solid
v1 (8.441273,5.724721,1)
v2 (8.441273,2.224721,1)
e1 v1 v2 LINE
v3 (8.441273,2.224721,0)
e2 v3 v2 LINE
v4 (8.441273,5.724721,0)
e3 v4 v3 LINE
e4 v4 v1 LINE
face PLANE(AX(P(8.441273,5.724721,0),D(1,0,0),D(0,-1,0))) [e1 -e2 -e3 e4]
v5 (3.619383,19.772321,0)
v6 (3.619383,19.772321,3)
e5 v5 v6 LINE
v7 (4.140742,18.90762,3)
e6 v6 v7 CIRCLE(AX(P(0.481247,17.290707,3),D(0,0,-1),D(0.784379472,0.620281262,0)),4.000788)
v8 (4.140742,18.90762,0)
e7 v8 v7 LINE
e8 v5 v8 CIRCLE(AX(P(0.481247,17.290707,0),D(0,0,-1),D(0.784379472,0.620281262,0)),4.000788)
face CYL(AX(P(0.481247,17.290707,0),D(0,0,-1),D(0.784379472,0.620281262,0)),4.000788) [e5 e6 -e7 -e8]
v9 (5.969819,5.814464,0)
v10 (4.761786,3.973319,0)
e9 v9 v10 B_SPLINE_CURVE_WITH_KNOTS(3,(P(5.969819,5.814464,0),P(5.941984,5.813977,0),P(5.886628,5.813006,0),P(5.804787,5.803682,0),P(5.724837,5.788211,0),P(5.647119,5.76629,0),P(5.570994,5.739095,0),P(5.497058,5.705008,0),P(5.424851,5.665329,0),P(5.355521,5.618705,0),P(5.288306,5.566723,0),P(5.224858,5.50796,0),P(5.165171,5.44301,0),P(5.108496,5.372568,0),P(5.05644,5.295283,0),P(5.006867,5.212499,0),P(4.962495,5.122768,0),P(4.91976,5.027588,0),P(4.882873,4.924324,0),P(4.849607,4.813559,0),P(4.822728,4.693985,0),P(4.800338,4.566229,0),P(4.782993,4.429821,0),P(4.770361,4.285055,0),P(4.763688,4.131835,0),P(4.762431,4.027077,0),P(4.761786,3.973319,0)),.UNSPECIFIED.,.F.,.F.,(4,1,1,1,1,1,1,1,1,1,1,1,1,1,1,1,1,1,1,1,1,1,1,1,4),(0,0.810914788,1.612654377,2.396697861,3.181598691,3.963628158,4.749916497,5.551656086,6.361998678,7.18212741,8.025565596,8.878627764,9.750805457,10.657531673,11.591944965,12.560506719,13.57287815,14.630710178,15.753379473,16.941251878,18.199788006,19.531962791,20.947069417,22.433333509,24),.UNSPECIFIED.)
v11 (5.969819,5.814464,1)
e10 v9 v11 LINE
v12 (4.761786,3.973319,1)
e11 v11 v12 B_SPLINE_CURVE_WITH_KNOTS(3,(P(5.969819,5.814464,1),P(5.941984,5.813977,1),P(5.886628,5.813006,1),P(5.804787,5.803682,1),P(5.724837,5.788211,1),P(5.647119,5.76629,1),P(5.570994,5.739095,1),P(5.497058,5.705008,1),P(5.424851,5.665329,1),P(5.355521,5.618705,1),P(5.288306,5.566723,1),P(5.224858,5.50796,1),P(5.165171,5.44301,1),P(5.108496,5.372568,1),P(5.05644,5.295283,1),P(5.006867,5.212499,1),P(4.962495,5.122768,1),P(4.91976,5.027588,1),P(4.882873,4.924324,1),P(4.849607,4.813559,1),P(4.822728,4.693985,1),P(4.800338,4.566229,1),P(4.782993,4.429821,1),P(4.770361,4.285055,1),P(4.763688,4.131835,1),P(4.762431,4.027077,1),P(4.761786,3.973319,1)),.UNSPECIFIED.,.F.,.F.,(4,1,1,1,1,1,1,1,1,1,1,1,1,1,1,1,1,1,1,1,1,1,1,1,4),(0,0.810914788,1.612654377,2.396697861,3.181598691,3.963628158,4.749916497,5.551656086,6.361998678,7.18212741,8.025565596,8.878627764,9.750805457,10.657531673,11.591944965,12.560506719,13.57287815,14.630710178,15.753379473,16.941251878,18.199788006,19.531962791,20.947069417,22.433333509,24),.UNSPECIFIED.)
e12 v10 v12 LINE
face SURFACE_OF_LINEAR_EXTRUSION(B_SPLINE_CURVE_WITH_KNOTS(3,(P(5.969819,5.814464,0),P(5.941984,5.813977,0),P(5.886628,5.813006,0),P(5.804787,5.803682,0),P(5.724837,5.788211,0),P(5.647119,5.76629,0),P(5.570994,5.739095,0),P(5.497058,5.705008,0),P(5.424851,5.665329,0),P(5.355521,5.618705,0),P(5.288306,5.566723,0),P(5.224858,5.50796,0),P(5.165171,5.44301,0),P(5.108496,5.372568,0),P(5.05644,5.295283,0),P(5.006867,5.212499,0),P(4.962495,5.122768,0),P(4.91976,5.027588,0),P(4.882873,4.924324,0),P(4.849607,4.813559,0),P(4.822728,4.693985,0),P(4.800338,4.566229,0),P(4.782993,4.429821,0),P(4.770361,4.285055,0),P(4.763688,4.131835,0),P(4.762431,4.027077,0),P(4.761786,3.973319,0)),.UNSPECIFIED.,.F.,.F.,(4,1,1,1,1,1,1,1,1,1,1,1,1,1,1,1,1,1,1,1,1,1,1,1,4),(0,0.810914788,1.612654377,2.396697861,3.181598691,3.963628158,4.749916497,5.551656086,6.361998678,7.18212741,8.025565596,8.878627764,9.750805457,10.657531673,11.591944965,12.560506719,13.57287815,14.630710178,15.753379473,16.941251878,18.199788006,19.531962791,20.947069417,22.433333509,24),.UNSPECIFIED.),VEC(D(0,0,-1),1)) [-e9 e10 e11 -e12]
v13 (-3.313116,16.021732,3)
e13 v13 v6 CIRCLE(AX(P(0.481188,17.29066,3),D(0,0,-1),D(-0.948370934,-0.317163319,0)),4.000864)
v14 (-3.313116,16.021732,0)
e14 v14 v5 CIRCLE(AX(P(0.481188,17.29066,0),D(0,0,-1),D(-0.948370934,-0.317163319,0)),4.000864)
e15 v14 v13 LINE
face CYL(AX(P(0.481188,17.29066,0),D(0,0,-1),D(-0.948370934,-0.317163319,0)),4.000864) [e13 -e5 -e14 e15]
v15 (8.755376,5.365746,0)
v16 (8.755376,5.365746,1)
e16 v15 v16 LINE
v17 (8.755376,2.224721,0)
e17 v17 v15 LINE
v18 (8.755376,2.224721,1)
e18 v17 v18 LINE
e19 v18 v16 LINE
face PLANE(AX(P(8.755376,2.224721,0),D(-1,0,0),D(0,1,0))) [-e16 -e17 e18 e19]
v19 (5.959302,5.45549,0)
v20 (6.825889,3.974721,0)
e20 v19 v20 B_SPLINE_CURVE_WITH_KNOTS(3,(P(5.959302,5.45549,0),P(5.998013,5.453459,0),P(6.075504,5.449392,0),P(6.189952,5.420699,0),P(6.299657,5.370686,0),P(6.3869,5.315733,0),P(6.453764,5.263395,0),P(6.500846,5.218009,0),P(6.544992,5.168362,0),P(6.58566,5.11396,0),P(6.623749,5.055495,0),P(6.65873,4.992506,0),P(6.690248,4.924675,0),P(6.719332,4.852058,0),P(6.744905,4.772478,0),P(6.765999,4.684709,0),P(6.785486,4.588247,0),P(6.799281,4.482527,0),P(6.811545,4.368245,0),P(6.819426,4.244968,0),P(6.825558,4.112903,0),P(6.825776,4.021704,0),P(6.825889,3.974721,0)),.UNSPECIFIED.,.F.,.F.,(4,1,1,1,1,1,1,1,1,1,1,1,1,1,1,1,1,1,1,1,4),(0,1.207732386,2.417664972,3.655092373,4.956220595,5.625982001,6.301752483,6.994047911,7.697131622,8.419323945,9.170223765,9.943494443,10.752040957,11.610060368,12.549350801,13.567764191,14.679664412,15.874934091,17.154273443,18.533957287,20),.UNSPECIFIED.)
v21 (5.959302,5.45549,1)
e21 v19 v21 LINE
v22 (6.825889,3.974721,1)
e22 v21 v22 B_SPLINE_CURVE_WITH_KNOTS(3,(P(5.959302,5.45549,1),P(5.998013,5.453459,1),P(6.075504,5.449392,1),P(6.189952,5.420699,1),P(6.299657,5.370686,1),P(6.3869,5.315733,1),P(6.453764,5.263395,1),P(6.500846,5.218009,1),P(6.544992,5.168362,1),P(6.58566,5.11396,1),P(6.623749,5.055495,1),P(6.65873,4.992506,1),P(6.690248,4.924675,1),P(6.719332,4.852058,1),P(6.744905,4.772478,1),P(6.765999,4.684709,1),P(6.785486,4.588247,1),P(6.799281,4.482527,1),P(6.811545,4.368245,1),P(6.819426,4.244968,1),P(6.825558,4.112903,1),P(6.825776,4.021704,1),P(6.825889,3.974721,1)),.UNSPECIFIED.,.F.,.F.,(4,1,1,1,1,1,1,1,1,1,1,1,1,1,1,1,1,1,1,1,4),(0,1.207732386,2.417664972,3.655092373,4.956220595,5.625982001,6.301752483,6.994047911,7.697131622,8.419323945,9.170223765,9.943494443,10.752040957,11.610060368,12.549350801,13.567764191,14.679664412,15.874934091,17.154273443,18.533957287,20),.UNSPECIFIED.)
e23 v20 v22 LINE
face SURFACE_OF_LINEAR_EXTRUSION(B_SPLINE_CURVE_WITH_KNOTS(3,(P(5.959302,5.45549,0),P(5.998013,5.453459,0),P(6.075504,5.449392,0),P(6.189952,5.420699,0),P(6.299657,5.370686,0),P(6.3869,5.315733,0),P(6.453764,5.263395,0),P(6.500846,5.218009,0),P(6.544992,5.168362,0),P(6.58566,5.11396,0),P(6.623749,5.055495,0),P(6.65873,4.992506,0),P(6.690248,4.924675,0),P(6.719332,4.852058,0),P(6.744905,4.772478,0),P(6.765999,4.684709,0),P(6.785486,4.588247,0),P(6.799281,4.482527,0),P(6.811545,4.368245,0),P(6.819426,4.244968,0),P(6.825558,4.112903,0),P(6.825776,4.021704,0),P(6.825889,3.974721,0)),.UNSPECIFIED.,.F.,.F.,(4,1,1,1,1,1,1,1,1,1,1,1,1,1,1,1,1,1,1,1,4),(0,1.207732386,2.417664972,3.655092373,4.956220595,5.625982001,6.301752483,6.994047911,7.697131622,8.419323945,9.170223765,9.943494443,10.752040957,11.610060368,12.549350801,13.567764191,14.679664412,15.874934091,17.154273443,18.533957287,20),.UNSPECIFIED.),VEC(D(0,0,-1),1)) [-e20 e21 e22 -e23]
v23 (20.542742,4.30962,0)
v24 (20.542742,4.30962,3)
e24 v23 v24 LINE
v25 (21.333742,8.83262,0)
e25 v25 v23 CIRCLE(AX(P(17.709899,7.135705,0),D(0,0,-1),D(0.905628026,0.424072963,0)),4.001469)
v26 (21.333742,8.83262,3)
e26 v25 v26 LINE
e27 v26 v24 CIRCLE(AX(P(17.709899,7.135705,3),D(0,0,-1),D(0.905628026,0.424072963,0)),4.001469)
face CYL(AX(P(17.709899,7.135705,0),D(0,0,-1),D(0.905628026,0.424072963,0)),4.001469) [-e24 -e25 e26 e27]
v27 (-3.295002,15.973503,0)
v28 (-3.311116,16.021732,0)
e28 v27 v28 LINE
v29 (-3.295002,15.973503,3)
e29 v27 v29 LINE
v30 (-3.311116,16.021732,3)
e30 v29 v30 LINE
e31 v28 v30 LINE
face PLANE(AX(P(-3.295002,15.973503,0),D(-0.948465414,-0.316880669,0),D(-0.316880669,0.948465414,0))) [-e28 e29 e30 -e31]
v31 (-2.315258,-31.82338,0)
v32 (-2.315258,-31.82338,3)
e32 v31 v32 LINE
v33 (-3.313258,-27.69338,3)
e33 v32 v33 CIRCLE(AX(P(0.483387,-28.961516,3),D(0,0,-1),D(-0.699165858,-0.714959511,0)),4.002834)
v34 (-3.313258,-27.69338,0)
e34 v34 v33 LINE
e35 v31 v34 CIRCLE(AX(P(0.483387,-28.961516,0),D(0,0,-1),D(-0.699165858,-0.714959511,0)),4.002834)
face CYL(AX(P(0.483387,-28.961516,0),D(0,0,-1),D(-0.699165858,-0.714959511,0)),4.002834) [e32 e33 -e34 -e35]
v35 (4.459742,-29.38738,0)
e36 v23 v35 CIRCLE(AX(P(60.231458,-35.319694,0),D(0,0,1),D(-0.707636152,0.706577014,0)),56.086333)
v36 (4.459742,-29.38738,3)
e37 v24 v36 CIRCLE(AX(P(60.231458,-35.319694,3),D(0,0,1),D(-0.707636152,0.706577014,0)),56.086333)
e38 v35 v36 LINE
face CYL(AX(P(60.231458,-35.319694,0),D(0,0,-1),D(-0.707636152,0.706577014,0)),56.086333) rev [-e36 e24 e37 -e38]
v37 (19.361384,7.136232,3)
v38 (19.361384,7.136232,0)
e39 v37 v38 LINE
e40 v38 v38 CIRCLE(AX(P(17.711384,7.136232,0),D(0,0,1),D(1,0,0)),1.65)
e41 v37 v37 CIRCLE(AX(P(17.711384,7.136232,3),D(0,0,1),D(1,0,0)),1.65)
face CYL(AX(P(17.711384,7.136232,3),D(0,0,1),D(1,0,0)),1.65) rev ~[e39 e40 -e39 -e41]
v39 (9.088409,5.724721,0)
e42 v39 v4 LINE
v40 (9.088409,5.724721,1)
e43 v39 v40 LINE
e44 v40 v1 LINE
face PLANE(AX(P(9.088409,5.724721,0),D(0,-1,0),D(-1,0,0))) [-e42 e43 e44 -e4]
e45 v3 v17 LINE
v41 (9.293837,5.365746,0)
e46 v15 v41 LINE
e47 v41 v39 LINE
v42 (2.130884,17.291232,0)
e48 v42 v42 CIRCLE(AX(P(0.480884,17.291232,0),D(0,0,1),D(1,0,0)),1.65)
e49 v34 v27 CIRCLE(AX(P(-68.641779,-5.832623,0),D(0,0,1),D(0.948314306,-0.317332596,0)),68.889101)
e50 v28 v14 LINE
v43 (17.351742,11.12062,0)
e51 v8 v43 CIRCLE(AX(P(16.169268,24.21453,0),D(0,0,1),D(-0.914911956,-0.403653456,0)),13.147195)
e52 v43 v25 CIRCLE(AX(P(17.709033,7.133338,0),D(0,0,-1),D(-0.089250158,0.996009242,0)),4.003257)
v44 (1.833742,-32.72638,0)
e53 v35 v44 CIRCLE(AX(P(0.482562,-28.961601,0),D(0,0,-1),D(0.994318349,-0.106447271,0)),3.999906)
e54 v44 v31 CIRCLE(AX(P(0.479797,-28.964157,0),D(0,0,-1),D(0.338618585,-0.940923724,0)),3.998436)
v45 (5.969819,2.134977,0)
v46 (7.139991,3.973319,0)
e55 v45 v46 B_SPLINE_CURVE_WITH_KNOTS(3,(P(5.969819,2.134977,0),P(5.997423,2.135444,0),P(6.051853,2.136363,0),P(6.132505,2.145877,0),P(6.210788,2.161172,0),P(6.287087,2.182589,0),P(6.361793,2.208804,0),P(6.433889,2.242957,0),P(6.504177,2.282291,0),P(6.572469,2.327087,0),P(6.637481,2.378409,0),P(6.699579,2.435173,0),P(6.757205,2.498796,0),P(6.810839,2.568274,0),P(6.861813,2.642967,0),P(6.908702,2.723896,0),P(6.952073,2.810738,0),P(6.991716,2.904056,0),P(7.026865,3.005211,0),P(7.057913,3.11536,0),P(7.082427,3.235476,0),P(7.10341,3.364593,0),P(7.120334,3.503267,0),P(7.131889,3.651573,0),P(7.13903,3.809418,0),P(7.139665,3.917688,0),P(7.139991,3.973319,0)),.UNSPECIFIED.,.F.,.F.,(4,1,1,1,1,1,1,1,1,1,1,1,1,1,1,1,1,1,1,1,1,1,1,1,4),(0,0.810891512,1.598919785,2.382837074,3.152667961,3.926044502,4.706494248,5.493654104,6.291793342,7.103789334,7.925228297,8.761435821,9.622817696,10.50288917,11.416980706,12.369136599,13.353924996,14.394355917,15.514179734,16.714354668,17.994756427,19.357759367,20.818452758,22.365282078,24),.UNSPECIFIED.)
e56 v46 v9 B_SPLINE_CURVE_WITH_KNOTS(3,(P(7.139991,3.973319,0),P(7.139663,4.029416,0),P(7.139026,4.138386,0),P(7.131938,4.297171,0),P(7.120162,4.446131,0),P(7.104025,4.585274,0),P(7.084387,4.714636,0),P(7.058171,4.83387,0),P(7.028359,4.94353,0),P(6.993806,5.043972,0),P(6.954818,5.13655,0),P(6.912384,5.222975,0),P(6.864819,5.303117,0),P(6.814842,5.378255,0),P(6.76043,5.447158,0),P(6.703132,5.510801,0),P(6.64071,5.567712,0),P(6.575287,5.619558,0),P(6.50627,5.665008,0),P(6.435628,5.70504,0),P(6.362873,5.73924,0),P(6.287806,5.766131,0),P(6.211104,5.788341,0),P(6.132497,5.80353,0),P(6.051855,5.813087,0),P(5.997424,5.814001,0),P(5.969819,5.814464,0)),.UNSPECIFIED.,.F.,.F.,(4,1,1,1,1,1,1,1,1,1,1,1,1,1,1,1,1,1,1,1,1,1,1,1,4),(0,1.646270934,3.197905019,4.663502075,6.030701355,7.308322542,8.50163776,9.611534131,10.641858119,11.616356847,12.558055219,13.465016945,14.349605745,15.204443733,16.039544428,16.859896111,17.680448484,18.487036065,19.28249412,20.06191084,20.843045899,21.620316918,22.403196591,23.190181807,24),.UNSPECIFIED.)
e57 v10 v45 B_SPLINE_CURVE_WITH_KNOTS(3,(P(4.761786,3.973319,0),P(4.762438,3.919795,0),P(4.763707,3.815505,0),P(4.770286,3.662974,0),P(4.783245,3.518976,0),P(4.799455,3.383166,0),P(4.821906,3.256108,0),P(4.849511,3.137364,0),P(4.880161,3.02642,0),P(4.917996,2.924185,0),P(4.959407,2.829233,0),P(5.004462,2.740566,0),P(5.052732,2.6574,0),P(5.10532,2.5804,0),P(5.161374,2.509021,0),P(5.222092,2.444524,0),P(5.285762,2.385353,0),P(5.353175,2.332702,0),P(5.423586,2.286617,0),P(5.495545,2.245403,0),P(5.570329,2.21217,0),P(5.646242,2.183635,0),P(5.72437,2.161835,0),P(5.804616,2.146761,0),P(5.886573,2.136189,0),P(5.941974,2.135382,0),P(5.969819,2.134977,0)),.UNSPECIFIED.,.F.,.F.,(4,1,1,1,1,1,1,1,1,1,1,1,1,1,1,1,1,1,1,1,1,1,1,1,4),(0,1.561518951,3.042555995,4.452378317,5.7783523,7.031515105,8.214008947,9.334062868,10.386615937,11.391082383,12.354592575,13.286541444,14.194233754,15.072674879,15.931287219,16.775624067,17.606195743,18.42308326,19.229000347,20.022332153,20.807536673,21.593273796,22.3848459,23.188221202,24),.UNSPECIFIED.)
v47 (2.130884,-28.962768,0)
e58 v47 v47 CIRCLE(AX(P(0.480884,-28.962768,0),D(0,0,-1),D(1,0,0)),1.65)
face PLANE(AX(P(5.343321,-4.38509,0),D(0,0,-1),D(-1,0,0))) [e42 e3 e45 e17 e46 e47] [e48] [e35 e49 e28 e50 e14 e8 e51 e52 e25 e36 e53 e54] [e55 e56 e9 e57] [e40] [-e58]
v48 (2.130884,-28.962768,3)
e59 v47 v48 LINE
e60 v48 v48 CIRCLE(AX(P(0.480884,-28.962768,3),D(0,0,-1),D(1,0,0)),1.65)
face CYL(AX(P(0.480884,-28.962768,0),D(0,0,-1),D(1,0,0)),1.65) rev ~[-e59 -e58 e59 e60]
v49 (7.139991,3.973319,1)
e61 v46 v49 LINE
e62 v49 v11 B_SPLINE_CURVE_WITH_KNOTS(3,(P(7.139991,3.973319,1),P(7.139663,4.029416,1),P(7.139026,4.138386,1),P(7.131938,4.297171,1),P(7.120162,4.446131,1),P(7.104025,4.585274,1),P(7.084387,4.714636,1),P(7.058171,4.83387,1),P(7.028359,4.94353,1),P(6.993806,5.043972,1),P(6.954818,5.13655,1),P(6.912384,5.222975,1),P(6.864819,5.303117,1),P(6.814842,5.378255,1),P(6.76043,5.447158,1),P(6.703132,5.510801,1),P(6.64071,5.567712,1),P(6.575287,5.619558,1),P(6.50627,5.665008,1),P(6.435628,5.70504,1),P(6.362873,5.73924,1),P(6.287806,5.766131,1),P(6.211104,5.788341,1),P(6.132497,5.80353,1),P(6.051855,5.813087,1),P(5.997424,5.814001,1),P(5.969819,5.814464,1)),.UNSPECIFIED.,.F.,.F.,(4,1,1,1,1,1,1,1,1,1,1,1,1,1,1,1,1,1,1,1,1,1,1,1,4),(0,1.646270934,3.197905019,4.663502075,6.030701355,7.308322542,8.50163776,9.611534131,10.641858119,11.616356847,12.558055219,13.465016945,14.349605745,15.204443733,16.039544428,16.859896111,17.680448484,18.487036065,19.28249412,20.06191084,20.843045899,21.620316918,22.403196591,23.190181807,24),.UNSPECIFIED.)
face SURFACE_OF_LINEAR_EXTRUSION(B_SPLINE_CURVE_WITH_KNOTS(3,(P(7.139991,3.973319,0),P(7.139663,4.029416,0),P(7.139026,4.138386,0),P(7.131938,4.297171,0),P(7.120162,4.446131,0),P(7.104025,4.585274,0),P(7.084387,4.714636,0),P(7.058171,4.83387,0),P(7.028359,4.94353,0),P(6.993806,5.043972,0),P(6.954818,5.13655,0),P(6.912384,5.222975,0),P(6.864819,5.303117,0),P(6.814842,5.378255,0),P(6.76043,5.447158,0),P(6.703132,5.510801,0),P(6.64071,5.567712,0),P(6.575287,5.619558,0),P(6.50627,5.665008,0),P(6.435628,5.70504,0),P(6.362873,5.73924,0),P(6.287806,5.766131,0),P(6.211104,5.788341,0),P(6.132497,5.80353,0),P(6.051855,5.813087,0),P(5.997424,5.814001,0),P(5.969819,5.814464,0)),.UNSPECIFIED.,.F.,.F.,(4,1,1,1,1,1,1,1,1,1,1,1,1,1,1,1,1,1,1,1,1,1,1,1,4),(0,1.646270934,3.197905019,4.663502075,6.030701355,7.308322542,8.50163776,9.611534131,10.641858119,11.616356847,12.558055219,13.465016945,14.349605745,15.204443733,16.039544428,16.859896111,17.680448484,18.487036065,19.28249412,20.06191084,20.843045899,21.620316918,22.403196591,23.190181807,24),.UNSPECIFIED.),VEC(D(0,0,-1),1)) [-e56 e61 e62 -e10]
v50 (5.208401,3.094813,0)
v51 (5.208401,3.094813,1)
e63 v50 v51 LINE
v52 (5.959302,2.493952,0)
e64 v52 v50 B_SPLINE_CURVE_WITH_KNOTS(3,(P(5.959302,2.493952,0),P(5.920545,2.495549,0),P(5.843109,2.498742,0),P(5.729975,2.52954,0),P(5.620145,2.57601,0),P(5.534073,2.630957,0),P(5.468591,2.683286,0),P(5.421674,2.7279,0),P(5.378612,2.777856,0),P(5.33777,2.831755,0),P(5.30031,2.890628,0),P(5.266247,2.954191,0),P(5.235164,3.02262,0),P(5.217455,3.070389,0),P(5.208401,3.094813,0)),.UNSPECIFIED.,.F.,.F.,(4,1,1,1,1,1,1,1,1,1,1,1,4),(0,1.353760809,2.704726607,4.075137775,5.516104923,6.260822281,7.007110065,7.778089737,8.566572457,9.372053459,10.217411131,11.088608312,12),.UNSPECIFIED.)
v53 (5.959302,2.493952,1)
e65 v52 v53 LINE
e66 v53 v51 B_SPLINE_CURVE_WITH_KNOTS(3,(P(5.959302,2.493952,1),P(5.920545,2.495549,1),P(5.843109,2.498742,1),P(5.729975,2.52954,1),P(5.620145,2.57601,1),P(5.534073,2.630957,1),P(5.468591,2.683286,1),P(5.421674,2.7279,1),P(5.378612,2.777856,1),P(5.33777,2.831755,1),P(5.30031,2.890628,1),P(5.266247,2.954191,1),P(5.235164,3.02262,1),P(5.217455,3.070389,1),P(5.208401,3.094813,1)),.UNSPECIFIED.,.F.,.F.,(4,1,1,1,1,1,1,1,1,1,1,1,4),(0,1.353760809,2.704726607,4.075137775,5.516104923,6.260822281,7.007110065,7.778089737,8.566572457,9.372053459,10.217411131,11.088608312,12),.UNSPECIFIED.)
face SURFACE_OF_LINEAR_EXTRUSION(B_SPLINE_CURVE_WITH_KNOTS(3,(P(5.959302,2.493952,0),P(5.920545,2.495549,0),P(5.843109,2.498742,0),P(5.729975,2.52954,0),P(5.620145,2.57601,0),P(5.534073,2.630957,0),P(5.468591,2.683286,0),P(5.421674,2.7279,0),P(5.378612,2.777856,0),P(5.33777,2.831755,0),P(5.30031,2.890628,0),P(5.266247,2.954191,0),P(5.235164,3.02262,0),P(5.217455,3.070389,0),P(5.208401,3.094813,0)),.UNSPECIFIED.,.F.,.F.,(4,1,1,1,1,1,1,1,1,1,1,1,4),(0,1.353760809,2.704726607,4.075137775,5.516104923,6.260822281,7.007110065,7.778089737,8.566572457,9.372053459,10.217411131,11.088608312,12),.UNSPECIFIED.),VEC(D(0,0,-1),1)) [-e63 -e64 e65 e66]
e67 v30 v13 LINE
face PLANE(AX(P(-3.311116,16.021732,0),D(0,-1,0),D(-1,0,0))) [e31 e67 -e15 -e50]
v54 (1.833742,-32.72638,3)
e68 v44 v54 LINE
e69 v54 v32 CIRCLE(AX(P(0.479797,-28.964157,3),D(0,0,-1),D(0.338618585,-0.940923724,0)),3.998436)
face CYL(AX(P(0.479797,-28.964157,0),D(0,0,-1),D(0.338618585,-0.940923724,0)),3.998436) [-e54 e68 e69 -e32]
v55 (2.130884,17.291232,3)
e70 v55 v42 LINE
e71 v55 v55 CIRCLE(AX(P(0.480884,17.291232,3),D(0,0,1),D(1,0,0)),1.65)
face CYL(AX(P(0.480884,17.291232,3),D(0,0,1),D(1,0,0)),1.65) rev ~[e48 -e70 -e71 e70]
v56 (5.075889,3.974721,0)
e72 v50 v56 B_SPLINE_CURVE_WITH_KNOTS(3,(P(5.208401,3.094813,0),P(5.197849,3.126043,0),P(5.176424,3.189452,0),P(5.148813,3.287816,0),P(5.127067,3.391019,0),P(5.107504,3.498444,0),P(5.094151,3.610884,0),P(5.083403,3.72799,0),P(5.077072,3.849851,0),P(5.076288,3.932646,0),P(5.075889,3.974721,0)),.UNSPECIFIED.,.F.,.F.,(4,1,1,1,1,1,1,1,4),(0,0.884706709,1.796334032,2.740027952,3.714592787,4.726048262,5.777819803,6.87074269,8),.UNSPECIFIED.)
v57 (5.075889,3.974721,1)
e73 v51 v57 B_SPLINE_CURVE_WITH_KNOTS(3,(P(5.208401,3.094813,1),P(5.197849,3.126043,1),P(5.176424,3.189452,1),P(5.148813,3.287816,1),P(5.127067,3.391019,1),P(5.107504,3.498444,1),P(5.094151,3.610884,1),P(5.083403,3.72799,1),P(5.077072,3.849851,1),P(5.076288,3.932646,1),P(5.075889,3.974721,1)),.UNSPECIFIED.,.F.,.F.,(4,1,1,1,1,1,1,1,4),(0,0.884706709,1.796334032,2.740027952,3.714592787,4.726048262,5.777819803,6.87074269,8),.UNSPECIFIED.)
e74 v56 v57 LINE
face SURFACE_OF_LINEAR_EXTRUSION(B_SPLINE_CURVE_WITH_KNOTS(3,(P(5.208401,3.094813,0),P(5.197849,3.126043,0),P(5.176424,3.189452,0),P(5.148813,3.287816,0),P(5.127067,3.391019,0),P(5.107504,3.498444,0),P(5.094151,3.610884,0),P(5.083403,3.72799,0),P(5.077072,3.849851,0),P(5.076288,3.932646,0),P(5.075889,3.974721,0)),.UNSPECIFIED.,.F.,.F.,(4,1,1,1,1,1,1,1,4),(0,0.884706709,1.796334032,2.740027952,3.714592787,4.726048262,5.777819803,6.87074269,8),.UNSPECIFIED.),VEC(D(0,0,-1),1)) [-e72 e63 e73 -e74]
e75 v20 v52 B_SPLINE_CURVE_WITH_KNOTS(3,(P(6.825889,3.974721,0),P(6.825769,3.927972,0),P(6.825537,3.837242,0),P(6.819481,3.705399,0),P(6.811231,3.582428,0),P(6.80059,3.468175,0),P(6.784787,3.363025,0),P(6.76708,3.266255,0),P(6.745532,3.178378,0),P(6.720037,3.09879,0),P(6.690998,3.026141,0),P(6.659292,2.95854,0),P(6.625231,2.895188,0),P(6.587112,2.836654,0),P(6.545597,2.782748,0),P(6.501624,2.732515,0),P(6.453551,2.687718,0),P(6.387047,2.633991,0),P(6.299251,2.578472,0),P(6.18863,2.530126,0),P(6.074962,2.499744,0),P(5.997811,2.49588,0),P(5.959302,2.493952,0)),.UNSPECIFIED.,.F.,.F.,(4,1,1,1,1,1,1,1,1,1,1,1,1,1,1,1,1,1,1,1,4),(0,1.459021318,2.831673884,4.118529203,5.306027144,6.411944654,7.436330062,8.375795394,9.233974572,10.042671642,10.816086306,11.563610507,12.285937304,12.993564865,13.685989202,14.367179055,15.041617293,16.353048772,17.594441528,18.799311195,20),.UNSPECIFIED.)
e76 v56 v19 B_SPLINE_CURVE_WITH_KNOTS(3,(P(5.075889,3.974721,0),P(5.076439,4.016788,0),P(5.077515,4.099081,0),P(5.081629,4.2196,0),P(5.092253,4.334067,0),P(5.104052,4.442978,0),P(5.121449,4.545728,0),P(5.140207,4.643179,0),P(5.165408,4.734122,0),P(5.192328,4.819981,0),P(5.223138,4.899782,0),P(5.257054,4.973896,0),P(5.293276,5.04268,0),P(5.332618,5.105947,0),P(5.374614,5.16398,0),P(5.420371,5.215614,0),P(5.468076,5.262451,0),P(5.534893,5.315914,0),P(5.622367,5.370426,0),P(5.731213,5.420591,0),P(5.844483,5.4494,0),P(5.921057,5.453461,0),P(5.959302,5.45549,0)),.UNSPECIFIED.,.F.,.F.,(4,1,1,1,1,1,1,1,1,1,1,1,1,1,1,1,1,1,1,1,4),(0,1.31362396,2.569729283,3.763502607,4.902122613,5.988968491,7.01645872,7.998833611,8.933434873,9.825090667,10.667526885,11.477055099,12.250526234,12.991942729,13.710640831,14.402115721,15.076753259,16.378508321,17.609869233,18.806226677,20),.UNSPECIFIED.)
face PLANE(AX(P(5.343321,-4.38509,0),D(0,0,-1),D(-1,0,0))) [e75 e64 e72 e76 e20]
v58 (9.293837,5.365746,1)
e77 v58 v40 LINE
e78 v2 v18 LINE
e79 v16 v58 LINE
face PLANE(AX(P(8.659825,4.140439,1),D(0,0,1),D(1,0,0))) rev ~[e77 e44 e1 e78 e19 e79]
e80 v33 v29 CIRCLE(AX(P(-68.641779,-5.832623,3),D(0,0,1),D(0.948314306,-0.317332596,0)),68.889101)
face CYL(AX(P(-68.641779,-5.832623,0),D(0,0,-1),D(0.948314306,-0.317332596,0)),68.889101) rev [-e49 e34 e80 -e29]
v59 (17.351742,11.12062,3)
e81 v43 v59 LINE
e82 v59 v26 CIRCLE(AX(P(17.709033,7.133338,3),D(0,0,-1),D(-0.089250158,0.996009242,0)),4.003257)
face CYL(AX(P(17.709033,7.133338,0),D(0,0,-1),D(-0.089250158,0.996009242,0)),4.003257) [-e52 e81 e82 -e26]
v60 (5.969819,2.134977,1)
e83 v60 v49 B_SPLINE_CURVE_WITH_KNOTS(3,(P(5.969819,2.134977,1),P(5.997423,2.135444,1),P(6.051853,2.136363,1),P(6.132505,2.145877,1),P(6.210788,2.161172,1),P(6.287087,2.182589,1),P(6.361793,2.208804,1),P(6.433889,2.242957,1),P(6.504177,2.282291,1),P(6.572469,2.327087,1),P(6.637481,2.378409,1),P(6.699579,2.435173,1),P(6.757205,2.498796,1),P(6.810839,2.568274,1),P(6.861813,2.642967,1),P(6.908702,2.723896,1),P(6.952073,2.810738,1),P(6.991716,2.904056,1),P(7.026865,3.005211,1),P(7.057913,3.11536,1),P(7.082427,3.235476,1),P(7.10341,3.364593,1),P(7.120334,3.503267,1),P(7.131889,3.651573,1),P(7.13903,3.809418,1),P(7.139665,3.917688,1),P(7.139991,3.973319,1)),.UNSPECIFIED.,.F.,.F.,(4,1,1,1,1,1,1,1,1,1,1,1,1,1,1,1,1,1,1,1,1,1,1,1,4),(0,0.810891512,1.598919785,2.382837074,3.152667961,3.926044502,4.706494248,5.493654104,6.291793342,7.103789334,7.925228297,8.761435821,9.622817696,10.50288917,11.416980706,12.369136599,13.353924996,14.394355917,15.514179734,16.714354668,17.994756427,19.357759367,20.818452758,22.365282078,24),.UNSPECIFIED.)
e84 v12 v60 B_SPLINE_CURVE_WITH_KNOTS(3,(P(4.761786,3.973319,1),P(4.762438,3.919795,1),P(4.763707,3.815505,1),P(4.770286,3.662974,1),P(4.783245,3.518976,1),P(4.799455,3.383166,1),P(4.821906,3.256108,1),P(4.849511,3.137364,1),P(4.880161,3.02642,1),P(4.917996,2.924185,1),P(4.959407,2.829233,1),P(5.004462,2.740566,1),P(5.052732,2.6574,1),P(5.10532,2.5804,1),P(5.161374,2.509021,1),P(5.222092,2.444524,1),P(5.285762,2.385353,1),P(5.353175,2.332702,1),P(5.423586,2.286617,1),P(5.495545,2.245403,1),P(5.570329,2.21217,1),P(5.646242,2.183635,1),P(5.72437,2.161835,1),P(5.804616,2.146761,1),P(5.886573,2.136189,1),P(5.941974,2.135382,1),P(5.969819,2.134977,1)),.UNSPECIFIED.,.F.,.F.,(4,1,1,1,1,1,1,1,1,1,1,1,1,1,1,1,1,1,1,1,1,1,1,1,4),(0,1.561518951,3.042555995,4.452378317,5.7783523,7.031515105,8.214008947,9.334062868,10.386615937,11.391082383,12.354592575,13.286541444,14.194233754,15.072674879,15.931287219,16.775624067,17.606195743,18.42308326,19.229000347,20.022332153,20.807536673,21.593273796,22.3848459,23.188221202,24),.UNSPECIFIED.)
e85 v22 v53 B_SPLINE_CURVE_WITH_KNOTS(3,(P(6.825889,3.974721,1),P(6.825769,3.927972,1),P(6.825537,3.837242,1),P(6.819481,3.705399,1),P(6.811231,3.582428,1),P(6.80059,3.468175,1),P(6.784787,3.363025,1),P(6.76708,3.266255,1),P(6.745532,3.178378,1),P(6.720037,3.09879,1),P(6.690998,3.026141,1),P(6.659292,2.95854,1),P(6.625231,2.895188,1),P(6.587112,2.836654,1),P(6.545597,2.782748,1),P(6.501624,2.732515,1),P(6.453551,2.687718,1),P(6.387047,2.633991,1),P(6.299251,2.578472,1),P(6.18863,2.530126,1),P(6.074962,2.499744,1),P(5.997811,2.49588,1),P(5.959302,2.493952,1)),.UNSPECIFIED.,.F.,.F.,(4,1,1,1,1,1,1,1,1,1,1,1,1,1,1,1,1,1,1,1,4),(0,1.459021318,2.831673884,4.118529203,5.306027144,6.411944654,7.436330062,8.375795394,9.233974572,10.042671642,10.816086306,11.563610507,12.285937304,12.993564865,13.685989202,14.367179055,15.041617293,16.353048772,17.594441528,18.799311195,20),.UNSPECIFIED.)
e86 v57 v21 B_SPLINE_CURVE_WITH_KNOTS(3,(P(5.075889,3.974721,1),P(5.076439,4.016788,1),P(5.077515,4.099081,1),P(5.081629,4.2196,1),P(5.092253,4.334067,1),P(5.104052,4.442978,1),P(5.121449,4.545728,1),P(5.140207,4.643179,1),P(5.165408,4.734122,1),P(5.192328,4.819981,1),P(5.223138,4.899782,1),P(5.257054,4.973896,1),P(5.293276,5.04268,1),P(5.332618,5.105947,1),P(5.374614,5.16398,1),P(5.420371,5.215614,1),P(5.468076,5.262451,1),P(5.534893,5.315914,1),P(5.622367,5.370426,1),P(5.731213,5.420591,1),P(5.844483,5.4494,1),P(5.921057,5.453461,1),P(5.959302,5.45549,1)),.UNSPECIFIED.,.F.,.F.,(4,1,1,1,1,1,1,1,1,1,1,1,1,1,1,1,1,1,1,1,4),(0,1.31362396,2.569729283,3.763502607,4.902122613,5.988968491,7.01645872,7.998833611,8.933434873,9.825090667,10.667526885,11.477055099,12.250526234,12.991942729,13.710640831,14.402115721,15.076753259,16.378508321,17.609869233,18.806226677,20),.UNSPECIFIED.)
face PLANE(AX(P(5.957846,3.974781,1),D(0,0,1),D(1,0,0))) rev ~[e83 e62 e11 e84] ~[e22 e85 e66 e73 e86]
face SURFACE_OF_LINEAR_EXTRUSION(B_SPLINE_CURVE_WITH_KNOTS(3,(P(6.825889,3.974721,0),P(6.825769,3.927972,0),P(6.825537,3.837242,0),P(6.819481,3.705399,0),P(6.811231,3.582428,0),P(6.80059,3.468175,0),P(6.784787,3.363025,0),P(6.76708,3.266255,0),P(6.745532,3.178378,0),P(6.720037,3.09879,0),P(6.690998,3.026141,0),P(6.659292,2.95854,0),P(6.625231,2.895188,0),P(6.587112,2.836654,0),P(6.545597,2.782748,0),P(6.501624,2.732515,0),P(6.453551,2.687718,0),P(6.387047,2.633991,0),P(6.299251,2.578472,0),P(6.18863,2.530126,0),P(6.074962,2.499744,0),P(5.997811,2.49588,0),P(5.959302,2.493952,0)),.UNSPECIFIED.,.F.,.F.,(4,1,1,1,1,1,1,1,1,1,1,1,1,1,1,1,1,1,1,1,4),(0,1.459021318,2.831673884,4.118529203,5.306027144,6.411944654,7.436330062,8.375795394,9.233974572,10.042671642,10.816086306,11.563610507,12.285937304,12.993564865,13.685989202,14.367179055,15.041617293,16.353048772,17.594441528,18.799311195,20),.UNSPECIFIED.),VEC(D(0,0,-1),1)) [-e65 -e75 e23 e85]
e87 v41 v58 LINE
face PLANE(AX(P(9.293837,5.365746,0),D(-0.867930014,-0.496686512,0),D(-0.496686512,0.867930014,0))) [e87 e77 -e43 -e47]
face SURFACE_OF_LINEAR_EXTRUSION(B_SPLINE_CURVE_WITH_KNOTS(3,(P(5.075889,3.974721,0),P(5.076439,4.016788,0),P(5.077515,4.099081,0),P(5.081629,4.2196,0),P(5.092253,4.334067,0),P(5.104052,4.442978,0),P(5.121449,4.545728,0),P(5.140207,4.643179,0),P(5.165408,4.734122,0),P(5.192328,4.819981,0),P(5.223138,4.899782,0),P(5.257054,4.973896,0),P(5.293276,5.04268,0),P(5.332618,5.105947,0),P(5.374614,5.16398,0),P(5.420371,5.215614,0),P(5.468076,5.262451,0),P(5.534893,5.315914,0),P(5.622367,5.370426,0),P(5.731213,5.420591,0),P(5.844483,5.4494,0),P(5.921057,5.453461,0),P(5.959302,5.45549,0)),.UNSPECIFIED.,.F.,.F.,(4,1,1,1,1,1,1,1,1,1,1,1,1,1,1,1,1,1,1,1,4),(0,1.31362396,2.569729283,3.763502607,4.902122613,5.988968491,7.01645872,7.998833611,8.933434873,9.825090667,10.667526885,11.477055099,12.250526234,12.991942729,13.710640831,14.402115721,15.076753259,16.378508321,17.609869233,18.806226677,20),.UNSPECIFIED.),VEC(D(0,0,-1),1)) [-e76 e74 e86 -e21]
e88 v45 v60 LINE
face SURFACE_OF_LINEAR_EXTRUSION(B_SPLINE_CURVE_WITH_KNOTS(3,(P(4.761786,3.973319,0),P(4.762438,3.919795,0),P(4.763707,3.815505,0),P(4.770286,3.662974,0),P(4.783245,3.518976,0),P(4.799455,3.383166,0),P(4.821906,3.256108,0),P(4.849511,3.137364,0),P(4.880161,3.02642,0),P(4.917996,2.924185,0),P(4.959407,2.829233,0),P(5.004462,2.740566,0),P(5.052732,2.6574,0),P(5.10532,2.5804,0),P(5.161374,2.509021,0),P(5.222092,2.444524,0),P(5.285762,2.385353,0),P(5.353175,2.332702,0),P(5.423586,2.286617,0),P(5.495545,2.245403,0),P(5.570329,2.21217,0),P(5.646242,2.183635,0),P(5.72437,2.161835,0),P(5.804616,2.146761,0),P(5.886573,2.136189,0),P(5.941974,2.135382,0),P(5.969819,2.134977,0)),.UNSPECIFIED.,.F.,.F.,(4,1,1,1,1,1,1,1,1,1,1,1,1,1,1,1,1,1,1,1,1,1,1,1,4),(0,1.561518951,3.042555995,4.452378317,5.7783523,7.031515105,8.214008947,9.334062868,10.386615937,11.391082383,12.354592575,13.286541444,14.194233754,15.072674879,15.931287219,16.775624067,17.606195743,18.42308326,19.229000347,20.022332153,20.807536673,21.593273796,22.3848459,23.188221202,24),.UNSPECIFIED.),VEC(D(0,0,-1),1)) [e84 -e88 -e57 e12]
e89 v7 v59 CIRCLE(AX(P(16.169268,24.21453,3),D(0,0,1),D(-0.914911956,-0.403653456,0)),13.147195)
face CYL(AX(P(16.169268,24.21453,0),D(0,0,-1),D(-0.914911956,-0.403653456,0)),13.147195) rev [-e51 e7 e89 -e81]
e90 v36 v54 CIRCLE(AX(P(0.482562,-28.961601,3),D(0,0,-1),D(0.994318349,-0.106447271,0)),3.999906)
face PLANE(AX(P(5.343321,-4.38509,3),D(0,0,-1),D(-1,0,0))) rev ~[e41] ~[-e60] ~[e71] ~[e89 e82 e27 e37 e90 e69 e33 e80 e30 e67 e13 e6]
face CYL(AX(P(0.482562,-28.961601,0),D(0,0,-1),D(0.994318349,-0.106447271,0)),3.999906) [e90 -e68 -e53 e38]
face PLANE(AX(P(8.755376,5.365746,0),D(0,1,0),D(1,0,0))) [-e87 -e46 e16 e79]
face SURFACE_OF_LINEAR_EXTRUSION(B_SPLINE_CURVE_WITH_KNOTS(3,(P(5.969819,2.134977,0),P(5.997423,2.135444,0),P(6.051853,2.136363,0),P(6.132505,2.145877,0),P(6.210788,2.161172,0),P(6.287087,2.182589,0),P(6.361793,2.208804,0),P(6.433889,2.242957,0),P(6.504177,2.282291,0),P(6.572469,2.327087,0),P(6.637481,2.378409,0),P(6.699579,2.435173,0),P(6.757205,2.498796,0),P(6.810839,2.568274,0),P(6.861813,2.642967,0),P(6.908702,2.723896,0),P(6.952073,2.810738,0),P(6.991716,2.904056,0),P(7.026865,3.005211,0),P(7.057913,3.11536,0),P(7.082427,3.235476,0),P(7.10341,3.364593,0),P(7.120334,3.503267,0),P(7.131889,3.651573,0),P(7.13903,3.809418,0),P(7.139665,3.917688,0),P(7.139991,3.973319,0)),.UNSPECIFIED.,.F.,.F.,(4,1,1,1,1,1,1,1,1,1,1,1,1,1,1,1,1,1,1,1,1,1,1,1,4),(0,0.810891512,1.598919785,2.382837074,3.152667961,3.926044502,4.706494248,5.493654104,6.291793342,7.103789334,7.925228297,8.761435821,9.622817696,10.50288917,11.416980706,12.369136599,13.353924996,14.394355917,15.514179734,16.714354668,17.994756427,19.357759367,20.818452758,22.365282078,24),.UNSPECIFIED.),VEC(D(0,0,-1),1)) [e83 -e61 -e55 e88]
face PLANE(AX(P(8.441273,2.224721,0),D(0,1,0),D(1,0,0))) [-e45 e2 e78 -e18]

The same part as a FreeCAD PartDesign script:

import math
import FreeCAD as App
import Part
import Sketcher
from FreeCAD import Vector
Q = App.Units.Quantity

doc = App.newDocument("Part")
body = doc.addObject("PartDesign::Body", "Body")

sketch1 = body.newObject("Sketcher::SketchObject", "Sketch")
sketch1.AttachmentSupport = (doc.getObject("XY_Plane"), [""])
sketch1.MapMode = "FlatFace"
sketch1.addGeometry([
    Part.LineSegment(Vector(-3.3111, 16.0217, 0), Vector(-3.3131, 16.0217, 0)),
    Part.ArcOfCircle(Part.Circle(Vector(0.4812, 17.2907, 0), Vector(0, 0, 1), 4.0009), math.radians(38), math.radians(198)),
    Part.ArcOfCircle(Part.Circle(Vector(0.4812, 17.2907, 0), Vector(0, 0, 1), 4.0008), math.radians(23.84), math.radians(38.34)),
    Part.ArcOfCircle(Part.Circle(Vector(16.1693, 24.2145, 0), Vector(0, 0, 1), 13.1472), math.radians(-156), math.radians(-85)),
    Part.ArcOfCircle(Part.Circle(Vector(17.709, 7.1333, 0), Vector(0, 0, 1), 4.0033), math.radians(25), math.radians(95)),
    Part.ArcOfCircle(Part.Circle(Vector(17.7099, 7.1357, 0), Vector(0, 0, 1), 4.0015), math.radians(-45), math.radians(25)),
    Part.ArcOfCircle(Part.Circle(Vector(60.2315, -35.3197, 0), Vector(0, 0, 1), 56.0863), math.radians(135), math.radians(174)),
    Part.ArcOfCircle(Part.Circle(Vector(0.4826, -28.9616, 0), Vector(0, 0, 1), 3.9999), math.radians(-70), math.radians(-6)),
    Part.ArcOfCircle(Part.Circle(Vector(0.4798, -28.9642, 0), Vector(0, 0, 1), 3.9984), math.radians(-134), math.radians(-70)),
    Part.ArcOfCircle(Part.Circle(Vector(0.4834, -28.9615, 0), Vector(0, 0, 1), 4.0028), math.radians(162), math.radians(226)),
    Part.ArcOfCircle(Part.Circle(Vector(-68.6418, -5.8326, 0), Vector(0, 0, 1), 68.8891), math.radians(-19), math.radians(18)),
    Part.LineSegment(Vector(-3.295, 15.9735, 0), Vector(-3.3111, 16.0217, 0)),
    Part.Circle(Vector(0.4809, -28.9628, 0), Vector(0, 0, 1), 1.65),
    Part.Circle(Vector(17.7114, 7.1362, 0), Vector(0, 0, 1), 1.35),
    Part.Circle(Vector(0.4809, 17.2912, 0), Vector(0, 0, 1), 1.3),
], False)
sketch1.addConstraint([
    Sketcher.Constraint("Coincident", 0, 2, 1, 2),
    Sketcher.Constraint("Tangent", 1, 1, 2, 2),
    Sketcher.Constraint("Coincident", 2, 1, 3, 1),
    Sketcher.Constraint("Coincident", 3, 2, 4, 2),
    Sketcher.Constraint("Coincident", 4, 1, 5, 2),
    Sketcher.Constraint("Coincident", 5, 1, 6, 1),
    Sketcher.Constraint("Coincident", 6, 2, 7, 2),
    Sketcher.Constraint("Coincident", 7, 1, 8, 2),
    Sketcher.Constraint("Coincident", 8, 1, 9, 2),
    Sketcher.Constraint("Coincident", 9, 1, 10, 1),
    Sketcher.Constraint("Coincident", 10, 2, 11, 1),
    Sketcher.Constraint("Coincident", 11, 2, 0, 1),
    Sketcher.Constraint("Horizontal", 0),
    Sketcher.Constraint("Vertical", 12, 3, 14, 3),
    Sketcher.Constraint("Diameter", 12, Q("3.3 mm")),
    Sketcher.Constraint("Diameter", 13, Q("2.7 mm")),
    Sketcher.Constraint("Diameter", 14, Q("2.6 mm")),
    Sketcher.Constraint("Radius", 10, Q("68.889101 mm")),
    Sketcher.Constraint("DistanceX", 0, 2, 0, 1, Q("0.002 mm")),
    Sketcher.Constraint("Radius", 2, Q("4.000788 mm")),
    Sketcher.Constraint("Radius", 5, Q("4.001469 mm")),
    Sketcher.Constraint("DistanceY", 8, 1, 9, 1, Q("4.13 mm")),
    Sketcher.Constraint("Radius", 1, Q("4.000864 mm")),
    Sketcher.Constraint("Radius", 3, Q("13.147195 mm")),
    Sketcher.Constraint("Radius", 4, Q("4.003257 mm")),
    Sketcher.Constraint("Radius", 6, Q("56.086333 mm")),
    Sketcher.Constraint("Radius", 7, Q("3.999906 mm")),
    Sketcher.Constraint("Radius", 8, Q("3.998436 mm")),
    Sketcher.Constraint("Radius", 9, Q("4.002834 mm")),
    Sketcher.Constraint("DistanceX", 0, 2, 14, 3, Q("3.794 mm")),
    Sketcher.Constraint("DistanceX", 2, 1, 3, 2, Q("13.211 mm")),
    Sketcher.Constraint("DistanceY", 3, 2, 2, 1, Q("7.787 mm")),
    Sketcher.Constraint("DistanceX", 3, 2, 4, 1, Q("3.982 mm")),
    Sketcher.Constraint("DistanceY", 4, 1, 3, 2, Q("2.288 mm")),
    Sketcher.Constraint("DistanceX", 5, 1, 4, 1, Q("0.791 mm")),
    Sketcher.Constraint("DistanceY", 5, 1, 4, 1, Q("4.523 mm")),
    Sketcher.Constraint("DistanceX", 6, 2, 5, 1, Q("16.083 mm")),
    Sketcher.Constraint("DistanceY", 6, 2, 5, 1, Q("33.697 mm")),
    Sketcher.Constraint("DistanceX", 7, 1, 6, 2, Q("2.626 mm")),
    Sketcher.Constraint("DistanceY", 7, 1, 6, 2, Q("3.339 mm")),
    Sketcher.Constraint("DistanceX", 8, 1, 7, 1, Q("4.149 mm")),
    Sketcher.Constraint("DistanceY", 7, 1, 8, 1, Q("0.903 mm")),
    Sketcher.Constraint("DistanceX", 9, 1, 8, 1, Q("0.998 mm")),
    Sketcher.Constraint("DistanceX", -1, 1, 5, 3, Q("17.709899 mm")),
    Sketcher.Constraint("DistanceY", 7, 3, -1, 1, Q("28.961601 mm")),
    Sketcher.Constraint("DistanceY", 6, 3, 2, 3, Q("52.610401 mm")),
    Sketcher.Constraint("DistanceY", 13, 3, 3, 3, Q("17.078298 mm")),
    Sketcher.Constraint("DistanceY", 14, 3, 3, 3, Q("6.923298 mm")),
    Sketcher.Constraint("DistanceY", 0, 2, 14, 3, Q("1.2695 mm")),
    Sketcher.Constraint("DistanceX", 14, 3, 1, 1, Q("3.138499 mm")),
    Sketcher.Constraint("Distance", 11, Q("0.05085 mm")),
    Sketcher.Constraint("DistanceX", 10, 3, -1, 1, Q("68.641779 mm")),
    Sketcher.Constraint("DistanceY", 8, 3, 12, 3, Q("0.001389 mm")),
    Sketcher.Constraint("DistanceX", 4, 3, 13, 3, Q("0.002351 mm")),
])
pad1 = body.newObject("PartDesign::Pad", "Pad")
pad1.Profile = sketch1
pad1.Length = 3

sketch2 = body.newObject("Sketcher::SketchObject", "Sketch001")
sketch2.AttachmentSupport = (doc.getObject("XY_Plane"), [""])
sketch2.MapMode = "FlatFace"
sketch2.AttachmentOffset = App.Placement(Vector(0, 0, 3), App.Rotation())
sketch2.addGeometry([
    Part.Circle(Vector(0.5, 17.3, 0), Vector(0, 0, 1), 1.6),
    Part.Circle(Vector(17.7, 7.1, 0), Vector(0, 0, 1), 1.6),
], False)
sketch2.addConstraint([
    Sketcher.Constraint("Equal", 0, 1),
    Sketcher.Constraint("Diameter", 0, Q("3.3 mm")),
    Sketcher.Constraint("DistanceY", 1, 3, 0, 3, Q("10.155 mm")),
    Sketcher.Constraint("DistanceX", 0, 3, 1, 3, Q("17.2305 mm")),
    Sketcher.Constraint("DistanceX", -1, 1, 0, 3, Q("0.480884 mm")),
    Sketcher.Constraint("DistanceY", -1, 1, 0, 3, Q("17.291232 mm")),
])
pocket1 = body.newObject("PartDesign::Pocket", "Pocket")
pocket1.Profile = sketch2
pocket1.Type = "ThroughAll"

sketch3 = body.newObject("Sketcher::SketchObject", "Sketch002")
sketch3.AttachmentSupport = (doc.getObject("XY_Plane"), [""])
sketch3.MapMode = "FlatFace"
sketch3.addGeometry([
    Part.LineSegment(Vector(8.441273, 5.724721, 0), Vector(9.088409, 5.724721, 0)),
    Part.LineSegment(Vector(9.088409, 5.724721, 0), Vector(9.293837, 5.365746, 0)),
    Part.LineSegment(Vector(9.293837, 5.365746, 0), Vector(8.755376, 5.365746, 0)),
    Part.LineSegment(Vector(8.755376, 5.365746, 0), Vector(8.755376, 2.224721, 0)),
    Part.LineSegment(Vector(8.755376, 2.224721, 0), Vector(8.441273, 2.224721, 0)),
    Part.LineSegment(Vector(8.441273, 2.224721, 0), Vector(8.441273, 5.724721, 0)),
    Part.BSplineCurve([Vector(7.139991, 3.973319, 0), Vector(7.139663, 4.029416, 0), Vector(7.139026, 4.138386, 0), Vector(7.131938, 4.297171, 0), Vector(7.120162, 4.446131, 0), Vector(7.104025, 4.585274, 0), Vector(7.084387, 4.714636, 0), Vector(7.058171, 4.83387, 0), Vector(7.028359, 4.94353, 0), Vector(6.993806, 5.043972, 0), Vector(6.954818, 5.13655, 0), Vector(6.912384, 5.222975, 0), Vector(6.864819, 5.303117, 0), Vector(6.814842, 5.378255, 0), Vector(6.76043, 5.447158, 0), Vector(6.703132, 5.510801, 0), Vector(6.64071, 5.567712, 0), Vector(6.575287, 5.619558, 0), Vector(6.50627, 5.665008, 0), Vector(6.435628, 5.70504, 0), Vector(6.362873, 5.73924, 0), Vector(6.287806, 5.766131, 0), Vector(6.211104, 5.788341, 0), Vector(6.132497, 5.80353, 0), Vector(6.051855, 5.813087, 0), Vector(5.997424, 5.814001, 0), Vector(5.969819, 5.814464, 0)], [4, 1, 1, 1, 1, 1, 1, 1, 1, 1, 1, 1, 1, 1, 1, 1, 1, 1, 1, 1, 1, 1, 1, 1, 4], [0, 1.646270934, 3.197905019, 4.663502075, 6.030701355, 7.308322542, 8.50163776, 9.611534131, 10.641858119, 11.616356847, 12.558055219, 13.465016945, 14.349605745, 15.204443733, 16.039544428, 16.859896111, 17.680448484, 18.487036065, 19.28249412, 20.06191084, 20.843045899, 21.620316918, 22.403196591, 23.190181807, 24], False, 3, [1, 1, 1, 1, 1, 1, 1, 1, 1, 1, 1, 1, 1, 1, 1, 1, 1, 1, 1, 1, 1, 1, 1, 1, 1, 1, 1], False),
    Part.BSplineCurve([Vector(5.969819, 2.134977, 0), Vector(5.997423, 2.135444, 0), Vector(6.051853, 2.136363, 0), Vector(6.132505, 2.145877, 0), Vector(6.210788, 2.161172, 0), Vector(6.287087, 2.182589, 0), Vector(6.361793, 2.208804, 0), Vector(6.433889, 2.242957, 0), Vector(6.504177, 2.282291, 0), Vector(6.572469, 2.327087, 0), Vector(6.637481, 2.378409, 0), Vector(6.699579, 2.435173, 0), Vector(6.757205, 2.498796, 0), Vector(6.810839, 2.568274, 0), Vector(6.861813, 2.642967, 0), Vector(6.908702, 2.723896, 0), Vector(6.952073, 2.810738, 0), Vector(6.991716, 2.904056, 0), Vector(7.026865, 3.005211, 0), Vector(7.057913, 3.11536, 0), Vector(7.082427, 3.235476, 0), Vector(7.10341, 3.364593, 0), Vector(7.120334, 3.503267, 0), Vector(7.131889, 3.651573, 0), Vector(7.13903, 3.809418, 0), Vector(7.139665, 3.917688, 0), Vector(7.139991, 3.973319, 0)], [4, 1, 1, 1, 1, 1, 1, 1, 1, 1, 1, 1, 1, 1, 1, 1, 1, 1, 1, 1, 1, 1, 1, 1, 4], [0, 0.810891512, 1.598919785, 2.382837074, 3.152667961, 3.926044502, 4.706494248, 5.493654104, 6.291793342, 7.103789334, 7.925228297, 8.761435821, 9.622817696, 10.50288917, 11.416980706, 12.369136599, 13.353924996, 14.394355917, 15.514179734, 16.714354668, 17.994756427, 19.357759367, 20.818452758, 22.365282078, 24], False, 3, [1, 1, 1, 1, 1, 1, 1, 1, 1, 1, 1, 1, 1, 1, 1, 1, 1, 1, 1, 1, 1, 1, 1, 1, 1, 1, 1], False),
    Part.BSplineCurve([Vector(4.761786, 3.973319, 0), Vector(4.762438, 3.919795, 0), Vector(4.763707, 3.815505, 0), Vector(4.770286, 3.662974, 0), Vector(4.783245, 3.518976, 0), Vector(4.799455, 3.383166, 0), Vector(4.821906, 3.256108, 0), Vector(4.849511, 3.137364, 0), Vector(4.880161, 3.02642, 0), Vector(4.917996, 2.924185, 0), Vector(4.959407, 2.829233, 0), Vector(5.004462, 2.740566, 0), Vector(5.052732, 2.6574, 0), Vector(5.10532, 2.5804, 0), Vector(5.161374, 2.509021, 0), Vector(5.222092, 2.444524, 0), Vector(5.285762, 2.385353, 0), Vector(5.353175, 2.332702, 0), Vector(5.423586, 2.286617, 0), Vector(5.495545, 2.245403, 0), Vector(5.570329, 2.21217, 0), Vector(5.646242, 2.183635, 0), Vector(5.72437, 2.161835, 0), Vector(5.804616, 2.146761, 0), Vector(5.886573, 2.136189, 0), Vector(5.941974, 2.135382, 0), Vector(5.969819, 2.134977, 0)], [4, 1, 1, 1, 1, 1, 1, 1, 1, 1, 1, 1, 1, 1, 1, 1, 1, 1, 1, 1, 1, 1, 1, 1, 4], [0, 1.561518951, 3.042555995, 4.452378317, 5.7783523, 7.031515105, 8.214008947, 9.334062868, 10.386615937, 11.391082383, 12.354592575, 13.286541444, 14.194233754, 15.072674879, 15.931287219, 16.775624067, 17.606195743, 18.42308326, 19.229000347, 20.022332153, 20.807536673, 21.593273796, 22.3848459, 23.188221202, 24], False, 3, [1, 1, 1, 1, 1, 1, 1, 1, 1, 1, 1, 1, 1, 1, 1, 1, 1, 1, 1, 1, 1, 1, 1, 1, 1, 1, 1], False),
    Part.BSplineCurve([Vector(5.969819, 5.814464, 0), Vector(5.941984, 5.813977, 0), Vector(5.886628, 5.813006, 0), Vector(5.804787, 5.803682, 0), Vector(5.724837, 5.788211, 0), Vector(5.647119, 5.76629, 0), Vector(5.570994, 5.739095, 0), Vector(5.497058, 5.705008, 0), Vector(5.424851, 5.665329, 0), Vector(5.355521, 5.618705, 0), Vector(5.288306, 5.566723, 0), Vector(5.224858, 5.50796, 0), Vector(5.165171, 5.44301, 0), Vector(5.108496, 5.372568, 0), Vector(5.05644, 5.295283, 0), Vector(5.006867, 5.212499, 0), Vector(4.962495, 5.122768, 0), Vector(4.91976, 5.027588, 0), Vector(4.882873, 4.924324, 0), Vector(4.849607, 4.813559, 0), Vector(4.822728, 4.693985, 0), Vector(4.800338, 4.566229, 0), Vector(4.782993, 4.429821, 0), Vector(4.770361, 4.285055, 0), Vector(4.763688, 4.131835, 0), Vector(4.762431, 4.027077, 0), Vector(4.761786, 3.973319, 0)], [4, 1, 1, 1, 1, 1, 1, 1, 1, 1, 1, 1, 1, 1, 1, 1, 1, 1, 1, 1, 1, 1, 1, 1, 4], [0, 0.810914788, 1.612654377, 2.396697861, 3.181598691, 3.963628158, 4.749916497, 5.551656086, 6.361998678, 7.18212741, 8.025565596, 8.878627764, 9.750805457, 10.657531673, 11.591944965, 12.560506719, 13.57287815, 14.630710178, 15.753379473, 16.941251878, 18.199788006, 19.531962791, 20.947069417, 22.433333509, 24], False, 3, [1, 1, 1, 1, 1, 1, 1, 1, 1, 1, 1, 1, 1, 1, 1, 1, 1, 1, 1, 1, 1, 1, 1, 1, 1, 1, 1], False),
    Part.BSplineCurve([Vector(5.959302, 5.45549, 0), Vector(5.998013, 5.453459, 0), Vector(6.075504, 5.449392, 0), Vector(6.189952, 5.420699, 0), Vector(6.299657, 5.370686, 0), Vector(6.3869, 5.315733, 0), Vector(6.453764, 5.263395, 0), Vector(6.500846, 5.218009, 0), Vector(6.544992, 5.168362, 0), Vector(6.58566, 5.11396, 0), Vector(6.623749, 5.055495, 0), Vector(6.65873, 4.992506, 0), Vector(6.690248, 4.924675, 0), Vector(6.719332, 4.852058, 0), Vector(6.744905, 4.772478, 0), Vector(6.765999, 4.684709, 0), Vector(6.785486, 4.588247, 0), Vector(6.799281, 4.482527, 0), Vector(6.811545, 4.368245, 0), Vector(6.819426, 4.244968, 0), Vector(6.825558, 4.112903, 0), Vector(6.825776, 4.021704, 0), Vector(6.825889, 3.974721, 0)], [4, 1, 1, 1, 1, 1, 1, 1, 1, 1, 1, 1, 1, 1, 1, 1, 1, 1, 1, 1, 4], [0, 1.207732386, 2.417664972, 3.655092373, 4.956220595, 5.625982001, 6.301752483, 6.994047911, 7.697131622, 8.419323945, 9.170223765, 9.943494443, 10.752040957, 11.610060368, 12.549350801, 13.567764191, 14.679664412, 15.874934091, 17.154273443, 18.533957287, 20], False, 3, [1, 1, 1, 1, 1, 1, 1, 1, 1, 1, 1, 1, 1, 1, 1, 1, 1, 1, 1, 1, 1, 1, 1], False),
    Part.BSplineCurve([Vector(5.075889, 3.974721, 0), Vector(5.076439, 4.016788, 0), Vector(5.077515, 4.099081, 0), Vector(5.081629, 4.2196, 0), Vector(5.092253, 4.334067, 0), Vector(5.104052, 4.442978, 0), Vector(5.121449, 4.545728, 0), Vector(5.140207, 4.643179, 0), Vector(5.165408, 4.734122, 0), Vector(5.192328, 4.819981, 0), Vector(5.223138, 4.899782, 0), Vector(5.257054, 4.973896, 0), Vector(5.293276, 5.04268, 0), Vector(5.332618, 5.105947, 0), Vector(5.374614, 5.16398, 0), Vector(5.420371, 5.215614, 0), Vector(5.468076, 5.262451, 0), Vector(5.534893, 5.315914, 0), Vector(5.622367, 5.370426, 0), Vector(5.731213, 5.420591, 0), Vector(5.844483, 5.4494, 0), Vector(5.921057, 5.453461, 0), Vector(5.959302, 5.45549, 0)], [4, 1, 1, 1, 1, 1, 1, 1, 1, 1, 1, 1, 1, 1, 1, 1, 1, 1, 1, 1, 4], [0, 1.31362396, 2.569729283, 3.763502607, 4.902122613, 5.988968491, 7.01645872, 7.998833611, 8.933434873, 9.825090667, 10.667526885, 11.477055099, 12.250526234, 12.991942729, 13.710640831, 14.402115721, 15.076753259, 16.378508321, 17.609869233, 18.806226677, 20], False, 3, [1, 1, 1, 1, 1, 1, 1, 1, 1, 1, 1, 1, 1, 1, 1, 1, 1, 1, 1, 1, 1, 1, 1], False),
    Part.BSplineCurve([Vector(5.208401, 3.094813, 0), Vector(5.197849, 3.126043, 0), Vector(5.176424, 3.189452, 0), Vector(5.148813, 3.287816, 0), Vector(5.127067, 3.391019, 0), Vector(5.107504, 3.498444, 0), Vector(5.094151, 3.610884, 0), Vector(5.083403, 3.72799, 0), Vector(5.077072, 3.849851, 0), Vector(5.076288, 3.932646, 0), Vector(5.075889, 3.974721, 0)], [4, 1, 1, 1, 1, 1, 1, 1, 4], [0, 0.884706709, 1.796334032, 2.740027952, 3.714592787, 4.726048262, 5.777819803, 6.87074269, 8], False, 3, [1, 1, 1, 1, 1, 1, 1, 1, 1, 1, 1], False),
    Part.BSplineCurve([Vector(5.959302, 2.493952, 0), Vector(5.920545, 2.495549, 0), Vector(5.843109, 2.498742, 0), Vector(5.729975, 2.52954, 0), Vector(5.620145, 2.57601, 0), Vector(5.534073, 2.630957, 0), Vector(5.468591, 2.683286, 0), Vector(5.421674, 2.7279, 0), Vector(5.378612, 2.777856, 0), Vector(5.33777, 2.831755, 0), Vector(5.30031, 2.890628, 0), Vector(5.266247, 2.954191, 0), Vector(5.235164, 3.02262, 0), Vector(5.217455, 3.070389, 0), Vector(5.208401, 3.094813, 0)], [4, 1, 1, 1, 1, 1, 1, 1, 1, 1, 1, 1, 4], [0, 1.353760809, 2.704726607, 4.075137775, 5.516104923, 6.260822281, 7.007110065, 7.778089737, 8.566572457, 9.372053459, 10.217411131, 11.088608312, 12], False, 3, [1, 1, 1, 1, 1, 1, 1, 1, 1, 1, 1, 1, 1, 1, 1], False),
    Part.BSplineCurve([Vector(6.825889, 3.974721, 0), Vector(6.825769, 3.927972, 0), Vector(6.825537, 3.837242, 0), Vector(6.819481, 3.705399, 0), Vector(6.811231, 3.582428, 0), Vector(6.80059, 3.468175, 0), Vector(6.784787, 3.363025, 0), Vector(6.76708, 3.266255, 0), Vector(6.745532, 3.178378, 0), Vector(6.720037, 3.09879, 0), Vector(6.690998, 3.026141, 0), Vector(6.659292, 2.95854, 0), Vector(6.625231, 2.895188, 0), Vector(6.587112, 2.836654, 0), Vector(6.545597, 2.782748, 0), Vector(6.501624, 2.732515, 0), Vector(6.453551, 2.687718, 0), Vector(6.387047, 2.633991, 0), Vector(6.299251, 2.578472, 0), Vector(6.18863, 2.530126, 0), Vector(6.074962, 2.499744, 0), Vector(5.997811, 2.49588, 0), Vector(5.959302, 2.493952, 0)], [4, 1, 1, 1, 1, 1, 1, 1, 1, 1, 1, 1, 1, 1, 1, 1, 1, 1, 1, 1, 4], [0, 1.459021318, 2.831673884, 4.118529203, 5.306027144, 6.411944654, 7.436330062, 8.375795394, 9.233974572, 10.042671642, 10.816086306, 11.563610507, 12.285937304, 12.993564865, 13.685989202, 14.367179055, 15.041617293, 16.353048772, 17.594441528, 18.799311195, 20], False, 3, [1, 1, 1, 1, 1, 1, 1, 1, 1, 1, 1, 1, 1, 1, 1, 1, 1, 1, 1, 1, 1, 1, 1], False),
], False)
sketch3.addConstraint([
    Sketcher.Constraint("Block", 6),
    Sketcher.Constraint("Block", 7),
    Sketcher.Constraint("Block", 8),
    Sketcher.Constraint("Block", 9),
    Sketcher.Constraint("Block", 10),
    Sketcher.Constraint("Block", 11),
    Sketcher.Constraint("Block", 12),
    Sketcher.Constraint("Block", 13),
    Sketcher.Constraint("Block", 14),
    Sketcher.Constraint("Coincident", 0, 2, 1, 1),
    Sketcher.Constraint("Coincident", 1, 2, 2, 1),
    Sketcher.Constraint("Coincident", 2, 2, 3, 1),
    Sketcher.Constraint("Coincident", 3, 2, 4, 1),
    Sketcher.Constraint("Coincident", 4, 2, 5, 1),
    Sketcher.Constraint("Coincident", 5, 2, 0, 1),
    Sketcher.Constraint("Horizontal", 0),
    Sketcher.Constraint("Horizontal", 2),
    Sketcher.Constraint("Vertical", 3),
    Sketcher.Constraint("Horizontal", 4),
    Sketcher.Constraint("Vertical", 5),
    Sketcher.Constraint("DistanceY", 5, 1, 5, 2, Q("3.5 mm")),
    Sketcher.Constraint("Distance", 1, Q("0.413598 mm")),
    Sketcher.Constraint("DistanceX", 2, 2, 2, 1, Q("0.538462 mm")),
    Sketcher.Constraint("DistanceX", 0, 1, 0, 2, Q("0.647135 mm")),
    Sketcher.Constraint("DistanceX", 4, 2, 4, 1, Q("0.314103 mm")),
    Sketcher.Constraint("DistanceX", -1, 1, 0, 2, Q("9.088409 mm")),
    Sketcher.Constraint("DistanceY", -1, 1, 0, 2, Q("5.724721 mm")),
])
pocket2 = body.newObject("PartDesign::Pocket", "Pocket001")
pocket2.Profile = sketch3
pocket2.Length = 1
pocket2.Reversed = True

doc.recompute()
